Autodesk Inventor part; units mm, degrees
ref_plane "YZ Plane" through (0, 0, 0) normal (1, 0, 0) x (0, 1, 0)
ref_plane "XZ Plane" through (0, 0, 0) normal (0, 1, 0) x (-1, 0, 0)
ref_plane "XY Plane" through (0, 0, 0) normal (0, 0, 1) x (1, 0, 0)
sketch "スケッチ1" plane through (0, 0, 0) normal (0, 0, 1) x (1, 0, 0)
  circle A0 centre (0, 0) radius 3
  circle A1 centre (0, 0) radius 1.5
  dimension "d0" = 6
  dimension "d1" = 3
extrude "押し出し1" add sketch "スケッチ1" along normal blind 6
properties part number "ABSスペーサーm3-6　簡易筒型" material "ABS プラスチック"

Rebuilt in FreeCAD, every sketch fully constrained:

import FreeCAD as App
import Part
import Sketcher

V = App.Vector
Q = App.Units.Quantity

doc = App.newDocument("Part")
body = doc.addObject("PartDesign::Body", "Body")

# Sketch on XY plane
sketch1 = doc.addObject("Sketcher::SketchObject", "Sketch")
body.addObject(sketch1)
sketch1.AttachmentSupport = (doc.XY_Plane, [""])
sketch1.MapMode = "FlatFace"
sketch1.addGeometry(Part.Circle(V(0, 0, 0), V(0, 0, 1), 3), False)
sketch1.addGeometry(Part.Circle(V(0, 0, 0), V(0, 0, 1), 1.5), False)
sketch1.addConstraint(Sketcher.Constraint("Coincident", 0, 3, -1, 1))
sketch1.addConstraint(Sketcher.Constraint("Coincident", 1, 3, -1, 1))
sketch1.addConstraint(Sketcher.Constraint("Diameter", 0, Q("6 mm")))
sketch1.addConstraint(Sketcher.Constraint("Diameter", 1, Q("3 mm")))
pad1 = doc.addObject("PartDesign::Pad", "Pad")
body.addObject(pad1)
pad1.Profile = sketch1
pad1.Length = 6

doc.recompute()
